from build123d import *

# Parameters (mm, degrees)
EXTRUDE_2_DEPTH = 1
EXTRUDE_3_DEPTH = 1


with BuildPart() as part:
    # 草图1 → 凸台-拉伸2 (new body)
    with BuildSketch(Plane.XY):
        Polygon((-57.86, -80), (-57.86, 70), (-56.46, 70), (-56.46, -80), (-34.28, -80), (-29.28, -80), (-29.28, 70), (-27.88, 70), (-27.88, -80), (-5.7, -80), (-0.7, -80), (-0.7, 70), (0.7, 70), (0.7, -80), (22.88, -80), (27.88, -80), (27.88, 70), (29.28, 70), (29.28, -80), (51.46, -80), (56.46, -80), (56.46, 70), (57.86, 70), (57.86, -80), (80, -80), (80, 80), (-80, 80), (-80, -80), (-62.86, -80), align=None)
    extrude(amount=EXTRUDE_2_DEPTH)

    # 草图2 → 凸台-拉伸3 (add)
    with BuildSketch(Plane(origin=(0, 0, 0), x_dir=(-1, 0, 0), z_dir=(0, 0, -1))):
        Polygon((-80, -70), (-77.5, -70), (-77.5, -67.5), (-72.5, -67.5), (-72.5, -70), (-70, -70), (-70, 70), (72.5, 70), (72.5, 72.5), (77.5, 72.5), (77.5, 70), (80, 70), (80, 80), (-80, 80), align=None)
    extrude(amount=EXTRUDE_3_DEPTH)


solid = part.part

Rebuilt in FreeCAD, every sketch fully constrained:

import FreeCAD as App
import Part
import Sketcher
from FreeCAD import Vector

doc = App.newDocument("Part")
body = doc.addObject("PartDesign::Body", "Body")

# Sketch on XY plane
sketch1 = body.newObject("Sketcher::SketchObject", "Sketch")
sketch1.AttachmentSupport = (doc.getObject("XY_Plane"), [""])
sketch1.MapMode = "FlatFace"
sketch1.addGeometry([
    Part.LineSegment(Vector(-57.9, -80, 0), Vector(-57.9, 70, 0)),  # 0
    Part.LineSegment(Vector(-57.9, 70, 0), Vector(-56.5, 70, 0)),  # 1
    Part.LineSegment(Vector(-56.5, 70, 0), Vector(-56.5, -80, 0)),  # 2
    Part.LineSegment(Vector(-56.5, -80, 0), Vector(-29.3, -80, 0)),  # 3
    Part.LineSegment(Vector(-29.3, -80, 0), Vector(-29.3, 70, 0)),  # 4
    Part.LineSegment(Vector(-29.3, 70, 0), Vector(-27.9, 70, 0)),  # 5
    Part.LineSegment(Vector(-27.9, 70, 0), Vector(-27.9, -80, 0)),  # 6
    Part.LineSegment(Vector(-27.9, -80, 0), Vector(-0.7, -80, 0)),  # 7
    Part.LineSegment(Vector(-0.7, -80, 0), Vector(-0.7, 70, 0)),  # 8
    Part.LineSegment(Vector(-0.7, 70, 0), Vector(0.7, 70, 0)),  # 9
    Part.LineSegment(Vector(0.7, 70, 0), Vector(0.7, -80, 0)),  # 10
    Part.LineSegment(Vector(0.7, -80, 0), Vector(27.9, -80, 0)),  # 11
    Part.LineSegment(Vector(27.9, -80, 0), Vector(27.9, 70, 0)),  # 12
    Part.LineSegment(Vector(27.9, 70, 0), Vector(29.3, 70, 0)),  # 13
    Part.LineSegment(Vector(29.3, 70, 0), Vector(29.3, -80, 0)),  # 14
    Part.LineSegment(Vector(29.3, -80, 0), Vector(56.5, -80, 0)),  # 15
    Part.LineSegment(Vector(56.5, -80, 0), Vector(56.5, 70, 0)),  # 16
    Part.LineSegment(Vector(56.5, 70, 0), Vector(57.9, 70, 0)),  # 17
    Part.LineSegment(Vector(57.9, 70, 0), Vector(57.9, -80, 0)),  # 18
    Part.LineSegment(Vector(57.9, -80, 0), Vector(80, -80, 0)),  # 19
    Part.LineSegment(Vector(80, -80, 0), Vector(80, 80, 0)),  # 20
    Part.LineSegment(Vector(80, 80, 0), Vector(-80, 80, 0)),  # 21
    Part.LineSegment(Vector(-80, 80, 0), Vector(-80, -80, 0)),  # 22
    Part.LineSegment(Vector(-80, -80, 0), Vector(-57.9, -80, 0)),  # 23
], False)
sketch1.addConstraint([
    Sketcher.Constraint("Coincident", 0, 2, 1, 1),
    Sketcher.Constraint("Coincident", 1, 2, 2, 1),
    Sketcher.Constraint("Coincident", 2, 2, 3, 1),
    Sketcher.Constraint("Coincident", 3, 2, 4, 1),
    Sketcher.Constraint("Coincident", 4, 2, 5, 1),
    Sketcher.Constraint("Coincident", 5, 2, 6, 1),
    Sketcher.Constraint("Coincident", 6, 2, 7, 1),
    Sketcher.Constraint("Coincident", 7, 2, 8, 1),
    Sketcher.Constraint("Coincident", 8, 2, 9, 1),
    Sketcher.Constraint("Coincident", 9, 2, 10, 1),
    Sketcher.Constraint("Coincident", 10, 2, 11, 1),
    Sketcher.Constraint("Coincident", 11, 2, 12, 1),
    Sketcher.Constraint("Coincident", 12, 2, 13, 1),
    Sketcher.Constraint("Coincident", 13, 2, 14, 1),
    Sketcher.Constraint("Coincident", 14, 2, 15, 1),
    Sketcher.Constraint("Coincident", 15, 2, 16, 1),
    Sketcher.Constraint("Coincident", 16, 2, 17, 1),
    Sketcher.Constraint("Coincident", 17, 2, 18, 1),
    Sketcher.Constraint("Coincident", 18, 2, 19, 1),
    Sketcher.Constraint("Coincident", 19, 2, 20, 1),
    Sketcher.Constraint("Coincident", 20, 2, 21, 1),
    Sketcher.Constraint("Coincident", 21, 2, 22, 1),
    Sketcher.Constraint("Coincident", 22, 2, 23, 1),
    Sketcher.Constraint("Coincident", 23, 2, 0, 1),
    Sketcher.Constraint("Vertical", 0),
    Sketcher.Constraint("Horizontal", 1),
    Sketcher.Constraint("Vertical", 2),
    Sketcher.Constraint("Horizontal", 3),
    Sketcher.Constraint("Vertical", 4),
    Sketcher.Constraint("Horizontal", 5),
    Sketcher.Constraint("Vertical", 6),
    Sketcher.Constraint("Horizontal", 7),
    Sketcher.Constraint("Vertical", 8),
    Sketcher.Constraint("Horizontal", 9),
    Sketcher.Constraint("Vertical", 10),
    Sketcher.Constraint("Horizontal", 11),
    Sketcher.Constraint("Vertical", 12),
    Sketcher.Constraint("Horizontal", 13),
    Sketcher.Constraint("Vertical", 14),
    Sketcher.Constraint("Horizontal", 15),
    Sketcher.Constraint("Vertical", 16),
    Sketcher.Constraint("Horizontal", 17),
    Sketcher.Constraint("Vertical", 18),
    Sketcher.Constraint("Horizontal", 19),
    Sketcher.Constraint("Vertical", 20),
    Sketcher.Constraint("Horizontal", 21),
    Sketcher.Constraint("Vertical", 22),
    Sketcher.Constraint("Horizontal", 23),
    Sketcher.Constraint("Symmetric", 19, 2, 21, 2, -1, 1),
    Sketcher.Constraint("Symmetric", 7, 2, 10, 2, -2),
    Sketcher.Constraint("Symmetric", 5, 2, 12, 2, -2),
    Sketcher.Constraint("Symmetric", 3, 2, 14, 2, -2),
    Sketcher.Constraint("Symmetric", 1, 2, 16, 2, -2),
    Sketcher.Constraint("Symmetric", 18, 2, 23, 2, -2),
    Sketcher.Constraint("Horizontal", 1, 2, 4, 2),
    Sketcher.Constraint("Horizontal", 3, 2, 6, 2),
    Sketcher.Constraint("Horizontal", 5, 2, 8, 2),
    Sketcher.Constraint("Horizontal", 15, 2, 18, 2),
    Sketcher.Constraint("Equal", 1, 5),
    Sketcher.Constraint("Equal", 3, 7),
    Sketcher.Constraint("Equal", 5, 9),
    Sketcher.Constraint("Equal", 21, 20),
    Sketcher.Constraint("DistanceX", 21, 2, 21, 1, 160.0),
    Sketcher.Constraint("DistanceY", 0, 1, 0, 2, 150.0),
    Sketcher.Constraint("DistanceX", 1, 1, 1, 2, 1.4),
    Sketcher.Constraint("DistanceX", 3, 1, 3, 2, 27.18),
])
pad1 = body.newObject("PartDesign::Pad", "Pad")
pad1.Profile = sketch1
pad1.Length = 1

# Sketch on XY plane
sketch2 = body.newObject("Sketcher::SketchObject", "Sketch001")
sketch2.AttachmentSupport = (doc.getObject("XY_Plane"), [""])
sketch2.MapMode = "FlatFace"
sketch2.addGeometry([
    Part.LineSegment(Vector(80, -70, 0), Vector(77.5, -70, 0)),  # 0
    Part.LineSegment(Vector(77.5, -70, 0), Vector(77.5, -67.5, 0)),  # 1
    Part.LineSegment(Vector(77.5, -67.5, 0), Vector(72.5, -67.5, 0)),  # 2
    Part.LineSegment(Vector(72.5, -67.5, 0), Vector(72.5, -70, 0)),  # 3
    Part.LineSegment(Vector(72.5, -70, 0), Vector(70, -70, 0)),  # 4
    Part.LineSegment(Vector(70, -70, 0), Vector(70, 70, 0)),  # 5
    Part.LineSegment(Vector(70, 70, 0), Vector(-72.5, 70, 0)),  # 6
    Part.LineSegment(Vector(-72.5, 70, 0), Vector(-72.5, 72.5, 0)),  # 7
    Part.LineSegment(Vector(-72.5, 72.5, 0), Vector(-77.5, 72.5, 0)),  # 8
    Part.LineSegment(Vector(-77.5, 72.5, 0), Vector(-77.5, 70, 0)),  # 9
    Part.LineSegment(Vector(-77.5, 70, 0), Vector(-80, 70, 0)),  # 10
    Part.LineSegment(Vector(-80, 70, 0), Vector(-80, 80, 0)),  # 11
    Part.LineSegment(Vector(-80, 80, 0), Vector(80, 80, 0)),  # 12
    Part.LineSegment(Vector(80, 80, 0), Vector(80, -70, 0)),  # 13
], False)
sketch2.addConstraint([
    Sketcher.Constraint("Coincident", 0, 2, 1, 1),
    Sketcher.Constraint("Coincident", 1, 2, 2, 1),
    Sketcher.Constraint("Coincident", 2, 2, 3, 1),
    Sketcher.Constraint("Coincident", 3, 2, 4, 1),
    Sketcher.Constraint("Coincident", 4, 2, 5, 1),
    Sketcher.Constraint("Coincident", 5, 2, 6, 1),
    Sketcher.Constraint("Coincident", 6, 2, 7, 1),
    Sketcher.Constraint("Coincident", 7, 2, 8, 1),
    Sketcher.Constraint("Coincident", 8, 2, 9, 1),
    Sketcher.Constraint("Coincident", 9, 2, 10, 1),
    Sketcher.Constraint("Coincident", 10, 2, 11, 1),
    Sketcher.Constraint("Coincident", 11, 2, 12, 1),
    Sketcher.Constraint("Coincident", 12, 2, 13, 1),
    Sketcher.Constraint("Coincident", 13, 2, 0, 1),
    Sketcher.Constraint("Horizontal", 0),
    Sketcher.Constraint("Vertical", 1),
    Sketcher.Constraint("Horizontal", 2),
    Sketcher.Constraint("Vertical", 3),
    Sketcher.Constraint("Horizontal", 4),
    Sketcher.Constraint("Vertical", 5),
    Sketcher.Constraint("Horizontal", 6),
    Sketcher.Constraint("Vertical", 7),
    Sketcher.Constraint("Horizontal", 8),
    Sketcher.Constraint("Vertical", 9),
    Sketcher.Constraint("Horizontal", 10),
    Sketcher.Constraint("Vertical", 11),
    Sketcher.Constraint("Horizontal", 12),
    Sketcher.Constraint("Vertical", 13),
    Sketcher.Constraint("Symmetric", 3, 2, 6, 2, -1, 1),
    Sketcher.Constraint("Symmetric", 0, 2, 9, 2, -1, 1),
    Sketcher.Constraint("Horizontal", 0, 2, 3, 2),
    Sketcher.Constraint("Equal", 0, 4),
    Sketcher.Constraint("Equal", 4, 10),
    Sketcher.Constraint("Equal", 10, 1),
    Sketcher.Constraint("Equal", 3, 7),
    Sketcher.Constraint("DistanceX", 2, 2, 2, 1, 5.0),
    Sketcher.Constraint("DistanceX", 12, 1, 12, 2, 160.0),
    Sketcher.Constraint("DistanceY", 5, 1, 5, 2, 140.0),
    Sketcher.Constraint("DistanceY", 11, 1, 11, 2, 10.0),
    Sketcher.Constraint("DistanceX", 0, 2, 0, 1, 2.5),
])
pad2 = body.newObject("PartDesign::Pad", "Pad001")
pad2.Profile = sketch2
pad2.Length = 1
pad2.Reversed = True

doc.recompute()
